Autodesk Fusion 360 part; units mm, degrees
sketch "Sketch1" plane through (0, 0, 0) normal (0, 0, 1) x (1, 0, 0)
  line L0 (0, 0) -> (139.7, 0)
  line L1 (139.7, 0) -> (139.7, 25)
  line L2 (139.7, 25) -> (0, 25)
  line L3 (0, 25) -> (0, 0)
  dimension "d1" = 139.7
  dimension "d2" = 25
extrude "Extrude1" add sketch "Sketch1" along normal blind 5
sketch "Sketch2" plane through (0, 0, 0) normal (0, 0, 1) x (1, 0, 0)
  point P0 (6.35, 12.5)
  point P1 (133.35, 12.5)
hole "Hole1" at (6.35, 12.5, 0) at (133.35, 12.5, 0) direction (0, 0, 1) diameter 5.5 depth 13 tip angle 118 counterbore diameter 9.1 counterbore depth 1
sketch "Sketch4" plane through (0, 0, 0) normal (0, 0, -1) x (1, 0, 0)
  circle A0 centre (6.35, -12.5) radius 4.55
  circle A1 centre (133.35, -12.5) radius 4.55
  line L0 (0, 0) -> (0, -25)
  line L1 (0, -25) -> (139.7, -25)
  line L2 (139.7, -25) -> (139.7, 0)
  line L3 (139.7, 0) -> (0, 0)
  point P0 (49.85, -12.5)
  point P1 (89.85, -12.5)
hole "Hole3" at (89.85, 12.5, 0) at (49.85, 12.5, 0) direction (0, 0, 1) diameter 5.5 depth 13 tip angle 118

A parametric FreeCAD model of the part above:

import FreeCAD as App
import Part
import Sketcher
from FreeCAD import Vector


def add_polygon(sketch, points):
    """Adds a closed chain of lines whose ends are joined by coincident constraints."""
    first, n = sketch.GeometryCount, len(points)
    for a, b in zip(points, points[1:] + points[:1]):
        sketch.addGeometry(Part.LineSegment(App.Vector(*a, 0), App.Vector(*b, 0)), False)
    for i in range(n):
        sketch.addConstraint(Sketcher.Constraint("Coincident", first + i, 2, first + (i + 1) % n, 1))

doc = App.newDocument("Part")
body = doc.addObject("PartDesign::Body", "Body")

# Sketch on XY plane
sketch1 = body.newObject("Sketcher::SketchObject", "Sketch")
sketch1.AttachmentSupport = (doc.getObject("XY_Plane"), [""])
sketch1.MapMode = "FlatFace"
add_polygon(sketch1, [(0, 25), (0, 0), (140, 0), (140, 25)])  # lines 0-3
sketch1.addConstraint([
    Sketcher.Constraint("Vertical", 0),
    Sketcher.Constraint("Horizontal", 1),
    Sketcher.Constraint("Vertical", 2),
    Sketcher.Constraint("Horizontal", 3),
    Sketcher.Constraint("Coincident", 0, 2, -1, 1),
    Sketcher.Constraint("DistanceY", 0, 2, 0, 1, 25.0),
    Sketcher.Constraint("DistanceX", 1, 1, 1, 2, 139.7),
])
pad1 = body.newObject("PartDesign::Pad", "Pad")
pad1.Profile = sketch1
pad1.Length = 5

# Sketch on XY plane
sketch2 = body.newObject("Sketcher::SketchObject", "Sketch001")
sketch2.AttachmentSupport = (doc.getObject("XY_Plane"), [""])
sketch2.MapMode = "FlatFace"
sketch2.addGeometry([
    Part.Circle(Vector(6.3, 12.5, 0), Vector(0, 0, 1), 2.8),
    Part.Circle(Vector(133.3, 12.5, 0), Vector(0, 0, 1), 2.8),
], False)
sketch2.addConstraint([
    Sketcher.Constraint("Equal", 0, 1),
    Sketcher.Constraint("Horizontal", 0, 3, 1, 3),
    Sketcher.Constraint("Diameter", 0, 5.5),
    Sketcher.Constraint("DistanceX", 0, 3, 1, 3, 127.0),
    Sketcher.Constraint("DistanceY", -1, 1, 0, 3, 12.5),
    Sketcher.Constraint("DistanceX", -1, 1, 0, 3, 6.35),
])
doc.recompute()
hole = body.newObject("PartDesign::Hole", "Hole")
hole.Profile = sketch2
hole.ThreadType = "None"
hole.Diameter = 5.5
hole.DepthType = "Dimension"
hole.Depth = 13
hole.DrillPoint = "Angled"
hole.DrillPointAngle = 118
hole.HoleCutType = "Counterbore"
hole.HoleCutDiameter = 9.1
hole.HoleCutDepth = 1
hole.Reversed = True

# Sketch on XY plane
sketch3 = body.newObject("Sketcher::SketchObject", "Sketch002")
sketch3.AttachmentSupport = (doc.getObject("XY_Plane"), [""])
sketch3.MapMode = "FlatFace"
sketch3.addGeometry([
    Part.Circle(Vector(89.8, 12.5, 0), Vector(0, 0, 1), 2.8),
    Part.Circle(Vector(49.9, 12.5, 0), Vector(0, 0, 1), 2.8),
], False)
sketch3.addConstraint([
    Sketcher.Constraint("Equal", 0, 1),
    Sketcher.Constraint("Horizontal", 0, 3, 1, 3),
    Sketcher.Constraint("Diameter", 0, 5.5),
    Sketcher.Constraint("DistanceX", 1, 3, 0, 3, 40.0),
    Sketcher.Constraint("DistanceY", -1, 1, 0, 3, 12.5),
    Sketcher.Constraint("DistanceX", -1, 1, 0, 3, 89.85),
])
doc.recompute()
hole2 = body.newObject("PartDesign::Hole", "Hole001")
hole2.Profile = sketch3
hole2.ThreadType = "None"
hole2.Diameter = 5.5
hole2.DepthType = "Dimension"
hole2.Depth = 13
hole2.DrillPoint = "Angled"
hole2.DrillPointAngle = 118
hole2.Reversed = True

doc.recompute()
